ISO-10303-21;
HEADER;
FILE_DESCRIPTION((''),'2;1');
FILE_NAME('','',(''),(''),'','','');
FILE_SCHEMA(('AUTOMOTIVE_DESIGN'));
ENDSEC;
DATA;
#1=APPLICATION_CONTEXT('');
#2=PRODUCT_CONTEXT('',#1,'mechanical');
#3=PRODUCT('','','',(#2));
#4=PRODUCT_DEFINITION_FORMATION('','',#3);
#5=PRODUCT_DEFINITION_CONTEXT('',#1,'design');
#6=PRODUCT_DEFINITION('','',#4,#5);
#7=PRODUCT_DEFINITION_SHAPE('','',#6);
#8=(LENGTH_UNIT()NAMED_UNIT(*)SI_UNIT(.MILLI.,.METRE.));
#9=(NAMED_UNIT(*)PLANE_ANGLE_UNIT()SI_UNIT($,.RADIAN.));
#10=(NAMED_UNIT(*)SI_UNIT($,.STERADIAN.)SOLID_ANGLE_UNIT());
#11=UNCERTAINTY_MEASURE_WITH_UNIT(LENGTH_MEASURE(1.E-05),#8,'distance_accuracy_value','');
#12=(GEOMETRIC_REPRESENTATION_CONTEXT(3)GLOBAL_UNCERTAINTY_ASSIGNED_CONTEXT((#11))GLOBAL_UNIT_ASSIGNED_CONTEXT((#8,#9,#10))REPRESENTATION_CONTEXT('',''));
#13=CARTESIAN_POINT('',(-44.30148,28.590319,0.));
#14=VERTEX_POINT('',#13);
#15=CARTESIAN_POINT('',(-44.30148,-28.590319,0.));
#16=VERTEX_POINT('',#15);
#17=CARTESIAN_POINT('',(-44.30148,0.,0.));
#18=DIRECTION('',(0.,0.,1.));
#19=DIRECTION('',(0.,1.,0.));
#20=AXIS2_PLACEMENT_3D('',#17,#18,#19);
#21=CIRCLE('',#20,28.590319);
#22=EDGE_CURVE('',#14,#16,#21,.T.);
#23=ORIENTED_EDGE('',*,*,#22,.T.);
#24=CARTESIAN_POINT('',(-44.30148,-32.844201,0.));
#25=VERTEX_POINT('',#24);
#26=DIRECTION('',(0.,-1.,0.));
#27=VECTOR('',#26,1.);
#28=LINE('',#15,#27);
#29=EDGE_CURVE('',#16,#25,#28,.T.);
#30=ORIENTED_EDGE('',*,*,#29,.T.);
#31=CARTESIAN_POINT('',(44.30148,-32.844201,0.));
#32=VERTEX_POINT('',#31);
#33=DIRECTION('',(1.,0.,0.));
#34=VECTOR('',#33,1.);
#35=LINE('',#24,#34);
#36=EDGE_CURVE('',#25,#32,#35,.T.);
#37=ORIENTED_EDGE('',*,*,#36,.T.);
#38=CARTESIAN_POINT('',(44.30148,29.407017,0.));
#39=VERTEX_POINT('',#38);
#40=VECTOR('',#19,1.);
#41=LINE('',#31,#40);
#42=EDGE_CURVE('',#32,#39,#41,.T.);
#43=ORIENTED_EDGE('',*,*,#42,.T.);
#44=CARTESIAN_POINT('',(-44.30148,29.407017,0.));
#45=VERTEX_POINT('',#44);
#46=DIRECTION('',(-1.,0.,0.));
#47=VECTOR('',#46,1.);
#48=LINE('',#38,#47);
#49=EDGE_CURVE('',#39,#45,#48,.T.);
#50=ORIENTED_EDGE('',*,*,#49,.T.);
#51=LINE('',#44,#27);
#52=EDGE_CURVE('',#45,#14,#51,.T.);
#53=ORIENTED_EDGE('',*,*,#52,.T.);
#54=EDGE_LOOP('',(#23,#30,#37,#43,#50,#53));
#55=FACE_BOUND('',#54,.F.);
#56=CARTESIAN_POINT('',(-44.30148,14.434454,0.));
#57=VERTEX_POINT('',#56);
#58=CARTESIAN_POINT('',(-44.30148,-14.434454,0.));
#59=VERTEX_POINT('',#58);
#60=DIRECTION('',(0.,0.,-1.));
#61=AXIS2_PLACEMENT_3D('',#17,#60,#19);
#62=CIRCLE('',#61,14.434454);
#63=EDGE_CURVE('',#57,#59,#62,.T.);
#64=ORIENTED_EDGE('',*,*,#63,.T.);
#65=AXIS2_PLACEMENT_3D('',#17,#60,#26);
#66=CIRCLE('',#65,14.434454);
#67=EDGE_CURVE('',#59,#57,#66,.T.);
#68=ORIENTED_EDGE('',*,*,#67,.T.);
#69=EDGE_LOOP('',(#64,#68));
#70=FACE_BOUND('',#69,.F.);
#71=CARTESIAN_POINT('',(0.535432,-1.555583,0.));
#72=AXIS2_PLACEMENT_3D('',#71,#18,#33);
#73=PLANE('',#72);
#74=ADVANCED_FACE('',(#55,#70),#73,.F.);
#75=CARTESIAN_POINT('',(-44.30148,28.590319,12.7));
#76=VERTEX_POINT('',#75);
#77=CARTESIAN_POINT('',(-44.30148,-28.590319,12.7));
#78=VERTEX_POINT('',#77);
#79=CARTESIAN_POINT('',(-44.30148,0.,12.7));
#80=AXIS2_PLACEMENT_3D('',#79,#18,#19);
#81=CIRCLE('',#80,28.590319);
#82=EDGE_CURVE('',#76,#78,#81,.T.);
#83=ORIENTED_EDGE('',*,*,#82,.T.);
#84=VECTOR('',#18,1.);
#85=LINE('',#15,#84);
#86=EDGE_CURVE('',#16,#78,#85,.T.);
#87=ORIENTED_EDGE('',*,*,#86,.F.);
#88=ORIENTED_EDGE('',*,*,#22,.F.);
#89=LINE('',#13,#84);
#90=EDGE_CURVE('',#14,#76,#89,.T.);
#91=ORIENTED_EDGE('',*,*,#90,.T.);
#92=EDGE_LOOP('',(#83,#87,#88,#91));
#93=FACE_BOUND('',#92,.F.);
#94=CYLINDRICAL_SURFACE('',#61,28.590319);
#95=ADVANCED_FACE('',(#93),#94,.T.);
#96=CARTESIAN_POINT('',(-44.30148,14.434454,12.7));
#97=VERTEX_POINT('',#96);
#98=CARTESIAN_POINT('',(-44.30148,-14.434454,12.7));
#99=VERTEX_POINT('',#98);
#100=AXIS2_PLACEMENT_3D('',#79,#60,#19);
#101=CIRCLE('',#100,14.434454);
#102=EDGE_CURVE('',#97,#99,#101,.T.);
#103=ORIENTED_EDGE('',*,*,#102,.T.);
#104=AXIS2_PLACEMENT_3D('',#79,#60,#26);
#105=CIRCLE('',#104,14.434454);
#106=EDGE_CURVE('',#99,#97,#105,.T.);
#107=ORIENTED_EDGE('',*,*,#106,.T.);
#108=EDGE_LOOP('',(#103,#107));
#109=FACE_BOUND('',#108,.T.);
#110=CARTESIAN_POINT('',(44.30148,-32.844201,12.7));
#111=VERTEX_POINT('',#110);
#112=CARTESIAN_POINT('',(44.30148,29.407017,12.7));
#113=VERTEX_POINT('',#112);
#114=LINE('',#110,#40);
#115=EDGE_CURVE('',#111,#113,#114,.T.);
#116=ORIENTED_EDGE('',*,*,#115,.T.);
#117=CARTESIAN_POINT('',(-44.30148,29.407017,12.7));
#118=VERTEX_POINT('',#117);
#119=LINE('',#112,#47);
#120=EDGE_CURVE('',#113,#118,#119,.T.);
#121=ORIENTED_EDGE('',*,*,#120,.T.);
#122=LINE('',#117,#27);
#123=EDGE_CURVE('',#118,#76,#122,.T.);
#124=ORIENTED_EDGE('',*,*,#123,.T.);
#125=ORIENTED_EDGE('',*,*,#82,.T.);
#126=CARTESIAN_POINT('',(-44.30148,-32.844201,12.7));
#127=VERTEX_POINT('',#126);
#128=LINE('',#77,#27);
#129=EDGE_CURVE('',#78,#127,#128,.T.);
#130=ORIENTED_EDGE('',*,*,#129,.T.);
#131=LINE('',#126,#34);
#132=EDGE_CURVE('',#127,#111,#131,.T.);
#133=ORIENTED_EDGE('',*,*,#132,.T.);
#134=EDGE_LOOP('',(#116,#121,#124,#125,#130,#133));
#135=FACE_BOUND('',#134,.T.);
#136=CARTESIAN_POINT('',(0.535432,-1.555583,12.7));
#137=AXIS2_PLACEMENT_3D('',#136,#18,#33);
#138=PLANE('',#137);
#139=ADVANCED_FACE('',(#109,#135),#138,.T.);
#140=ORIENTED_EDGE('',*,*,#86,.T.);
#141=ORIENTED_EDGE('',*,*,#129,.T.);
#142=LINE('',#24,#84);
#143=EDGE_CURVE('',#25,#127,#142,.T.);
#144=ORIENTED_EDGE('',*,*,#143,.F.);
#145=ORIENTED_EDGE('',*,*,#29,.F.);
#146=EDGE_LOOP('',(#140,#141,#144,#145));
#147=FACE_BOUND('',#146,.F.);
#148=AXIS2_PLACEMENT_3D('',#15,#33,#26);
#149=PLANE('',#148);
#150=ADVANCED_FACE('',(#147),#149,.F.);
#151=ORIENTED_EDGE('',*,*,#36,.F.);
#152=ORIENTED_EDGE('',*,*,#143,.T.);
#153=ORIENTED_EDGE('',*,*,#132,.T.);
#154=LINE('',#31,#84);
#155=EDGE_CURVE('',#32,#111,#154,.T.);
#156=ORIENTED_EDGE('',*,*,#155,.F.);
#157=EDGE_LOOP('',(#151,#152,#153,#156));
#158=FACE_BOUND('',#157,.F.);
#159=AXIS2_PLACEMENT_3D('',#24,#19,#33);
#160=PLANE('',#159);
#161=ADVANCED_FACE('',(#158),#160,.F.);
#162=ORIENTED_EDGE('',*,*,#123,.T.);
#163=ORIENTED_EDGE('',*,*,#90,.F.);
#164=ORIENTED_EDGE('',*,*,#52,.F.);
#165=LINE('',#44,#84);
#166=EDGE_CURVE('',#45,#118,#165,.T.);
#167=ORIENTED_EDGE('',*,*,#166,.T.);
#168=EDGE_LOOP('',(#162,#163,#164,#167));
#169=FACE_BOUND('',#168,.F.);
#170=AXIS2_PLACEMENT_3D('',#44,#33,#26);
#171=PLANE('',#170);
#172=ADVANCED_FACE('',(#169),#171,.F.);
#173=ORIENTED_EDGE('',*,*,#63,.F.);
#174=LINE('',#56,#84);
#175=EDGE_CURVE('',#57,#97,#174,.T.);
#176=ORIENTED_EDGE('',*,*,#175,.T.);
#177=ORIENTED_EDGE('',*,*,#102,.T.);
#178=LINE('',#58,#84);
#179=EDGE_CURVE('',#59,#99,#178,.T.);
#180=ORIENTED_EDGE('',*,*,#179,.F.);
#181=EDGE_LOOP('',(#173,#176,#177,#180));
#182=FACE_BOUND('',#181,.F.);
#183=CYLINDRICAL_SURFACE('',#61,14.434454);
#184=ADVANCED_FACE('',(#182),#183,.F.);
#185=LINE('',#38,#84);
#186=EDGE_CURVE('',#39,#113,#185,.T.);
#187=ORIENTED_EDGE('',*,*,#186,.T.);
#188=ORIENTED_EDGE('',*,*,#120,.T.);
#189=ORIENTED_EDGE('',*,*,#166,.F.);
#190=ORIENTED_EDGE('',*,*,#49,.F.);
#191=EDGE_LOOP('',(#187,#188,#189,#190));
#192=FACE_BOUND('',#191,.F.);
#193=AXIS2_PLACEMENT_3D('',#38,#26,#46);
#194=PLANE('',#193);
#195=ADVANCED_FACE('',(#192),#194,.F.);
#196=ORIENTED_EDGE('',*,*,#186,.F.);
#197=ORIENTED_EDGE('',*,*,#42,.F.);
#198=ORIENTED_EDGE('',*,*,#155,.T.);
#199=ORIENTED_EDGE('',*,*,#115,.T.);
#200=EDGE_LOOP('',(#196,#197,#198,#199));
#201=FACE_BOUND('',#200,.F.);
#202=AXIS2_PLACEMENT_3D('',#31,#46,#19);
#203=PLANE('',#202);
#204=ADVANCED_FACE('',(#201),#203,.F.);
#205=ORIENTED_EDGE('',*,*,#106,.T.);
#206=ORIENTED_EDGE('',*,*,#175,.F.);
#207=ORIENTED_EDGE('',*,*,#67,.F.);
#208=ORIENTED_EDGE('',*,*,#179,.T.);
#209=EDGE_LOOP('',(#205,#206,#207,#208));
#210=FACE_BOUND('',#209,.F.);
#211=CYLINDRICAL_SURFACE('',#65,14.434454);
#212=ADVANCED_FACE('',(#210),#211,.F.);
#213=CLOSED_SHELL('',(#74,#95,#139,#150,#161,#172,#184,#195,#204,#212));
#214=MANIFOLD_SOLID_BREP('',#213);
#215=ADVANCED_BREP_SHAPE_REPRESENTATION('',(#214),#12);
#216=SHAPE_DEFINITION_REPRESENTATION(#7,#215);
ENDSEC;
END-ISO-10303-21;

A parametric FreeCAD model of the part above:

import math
import FreeCAD as App
import Part
import Sketcher

V = App.Vector
Q = App.Units.Quantity

doc = App.newDocument("Part")
body = doc.addObject("PartDesign::Body", "Body")

sketch1 = body.newObject("Sketcher::SketchObject", "Sketch")
sketch1.AttachmentSupport = (doc.getObject("XY_Plane"), [""])
sketch1.MapMode = "FlatFace"
sketch1.addGeometry(Part.LineSegment(V(-44.3, -32.8, 0), V(44.3, -32.8, 0)), False)
sketch1.addGeometry(Part.LineSegment(V(44.3, -32.8, 0), V(44.3, 29.4, 0)), False)
sketch1.addGeometry(Part.LineSegment(V(44.3, 29.4, 0), V(-44.3, 29.4, 0)), False)
sketch1.addGeometry(Part.LineSegment(V(-44.3, 29.4, 0), V(-44.3, 28.6, 0)), False)
sketch1.addGeometry(Part.ArcOfCircle(Part.Circle(V(-44.3, 0, 0), V(0, 0, 1), 28.6), math.radians(90), math.radians(270)), False)
sketch1.addGeometry(Part.LineSegment(V(-44.3, -28.6, 0), V(-44.3, -32.8, 0)), False)
sketch1.addGeometry(Part.ArcOfCircle(Part.Circle(V(-44.3, 0, 0), V(0, 0, 1), 14.4), math.radians(-90), math.radians(90)), False)
sketch1.addGeometry(Part.ArcOfCircle(Part.Circle(V(-44.3, 0, 0), V(0, 0, 1), 14.4), math.radians(90), math.radians(270)), False)
sketch1.addConstraint(Sketcher.Constraint("Coincident", 0, 2, 1, 1))
sketch1.addConstraint(Sketcher.Constraint("Coincident", 1, 2, 2, 1))
sketch1.addConstraint(Sketcher.Constraint("Coincident", 2, 2, 3, 1))
sketch1.addConstraint(Sketcher.Constraint("Coincident", 3, 2, 4, 1))
sketch1.addConstraint(Sketcher.Constraint("Coincident", 4, 2, 5, 1))
sketch1.addConstraint(Sketcher.Constraint("Coincident", 5, 2, 0, 1))
sketch1.addConstraint(Sketcher.Constraint("Tangent", 6, 1, 7, 2))
sketch1.addConstraint(Sketcher.Constraint("Coincident", 7, 1, 6, 2))
sketch1.addConstraint(Sketcher.Constraint("Horizontal", 0))
sketch1.addConstraint(Sketcher.Constraint("Vertical", 1))
sketch1.addConstraint(Sketcher.Constraint("Horizontal", 2))
sketch1.addConstraint(Sketcher.Constraint("Vertical", 3))
sketch1.addConstraint(Sketcher.Constraint("Vertical", 5))
sketch1.addConstraint(Sketcher.Constraint("Coincident", 6, 3, 4, 3))
sketch1.addConstraint(Sketcher.Constraint("Symmetric", 3, 2, 4, 2, -1))
sketch1.addConstraint(Sketcher.Constraint("Vertical", 7, 3, 2, 2))
sketch1.addConstraint(Sketcher.Constraint("Vertical", 5, 2, 6, 1))
sketch1.addConstraint(Sketcher.Constraint("Vertical", 6, 1, 7, 1))
sketch1.addConstraint(Sketcher.Constraint("Radius", 4, 28.590319))
sketch1.addConstraint(Sketcher.Constraint("DistanceY", 3, 2, 3, 1, 0.816698))
sketch1.addConstraint(Sketcher.Constraint("Radius", 6, 14.434454))
sketch1.addConstraint(Sketcher.Constraint("DistanceX", 0, 1, 0, 2, 88.60296))
sketch1.addConstraint(Sketcher.Constraint("DistanceY", 0, 2, -1, 1, 32.844201))
sketch1.addConstraint(Sketcher.Constraint("DistanceX", 4, 3, -1, 1, 44.30148))
pad1 = body.newObject("PartDesign::Pad", "Pad")
pad1.Profile = sketch1
pad1.Length = Q("0.5 in")

doc.recompute()
